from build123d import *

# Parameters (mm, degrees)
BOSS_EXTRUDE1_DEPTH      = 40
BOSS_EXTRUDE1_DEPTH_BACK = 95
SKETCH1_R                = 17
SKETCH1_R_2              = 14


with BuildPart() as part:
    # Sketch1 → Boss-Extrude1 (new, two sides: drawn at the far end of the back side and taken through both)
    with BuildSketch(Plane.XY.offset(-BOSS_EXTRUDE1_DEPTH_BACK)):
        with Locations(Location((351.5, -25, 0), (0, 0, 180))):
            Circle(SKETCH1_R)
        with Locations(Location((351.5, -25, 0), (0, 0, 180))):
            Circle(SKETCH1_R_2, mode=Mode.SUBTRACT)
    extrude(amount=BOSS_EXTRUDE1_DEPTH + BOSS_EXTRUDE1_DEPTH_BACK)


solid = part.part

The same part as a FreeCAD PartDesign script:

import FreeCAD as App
import Part
import Sketcher

doc = App.newDocument("Part")
body = doc.addObject("PartDesign::Body", "Body")

# Sketch on XY plane
sketch1 = body.newObject("Sketcher::SketchObject", "Sketch")
sketch1.AttachmentSupport = (doc.getObject("XY_Plane"), [""])
sketch1.MapMode = "FlatFace"
sketch1.addGeometry([
    Part.Circle(App.Vector(352, -25, 0), App.Vector(0, 0, 1), 17),
    Part.Circle(App.Vector(352, -25, 0), App.Vector(0, 0, 1), 14),
], False)
sketch1.addConstraint([
    Sketcher.Constraint("Coincident", 1, 3, 0, 3),
    Sketcher.Constraint("Diameter", 0, 34.0),
    Sketcher.Constraint("Diameter", 1, 28.0),
    Sketcher.Constraint("DistanceY", 0, 3, -1, 1, 25.0),
    Sketcher.Constraint("DistanceX", -1, 1, 0, 3, 351.5),
])
pad1 = body.newObject("PartDesign::Pad", "Pad")
pad1.Profile = sketch1
pad1.Type = "TwoLengths"
pad1.Length = 40
pad1.Length2 = 95

doc.recompute()
